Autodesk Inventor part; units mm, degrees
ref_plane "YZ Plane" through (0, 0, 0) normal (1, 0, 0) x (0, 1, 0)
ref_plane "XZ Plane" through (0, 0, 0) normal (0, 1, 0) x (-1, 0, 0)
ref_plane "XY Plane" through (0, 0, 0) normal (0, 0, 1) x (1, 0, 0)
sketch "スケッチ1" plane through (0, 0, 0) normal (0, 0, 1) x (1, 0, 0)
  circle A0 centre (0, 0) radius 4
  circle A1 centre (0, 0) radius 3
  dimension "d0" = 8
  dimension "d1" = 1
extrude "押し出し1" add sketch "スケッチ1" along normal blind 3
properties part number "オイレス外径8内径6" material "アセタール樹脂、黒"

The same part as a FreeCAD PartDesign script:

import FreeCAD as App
import Part
import Sketcher
from FreeCAD import Vector

doc = App.newDocument("Part")
body = doc.addObject("PartDesign::Body", "Body")

# Sketch on XY plane
sketch1 = body.newObject("Sketcher::SketchObject", "Sketch")
sketch1.AttachmentSupport = (doc.getObject("XY_Plane"), [""])
sketch1.MapMode = "FlatFace"
sketch1.addGeometry(Part.Circle(Vector(0, 0, 0), Vector(0, 0, 1), 4), False)
sketch1.addGeometry(Part.Circle(Vector(0, 0, 0), Vector(0, 0, 1), 3), False)
sketch1.addConstraint(Sketcher.Constraint("Coincident", 0, 3, -1, 1))
sketch1.addConstraint(Sketcher.Constraint("Coincident", 1, 3, -1, 1))
sketch1.addConstraint(Sketcher.Constraint("Diameter", 0, 8.0))
sketch1.addConstraint(Sketcher.Constraint("Diameter", 1, 6.0))
pad1 = body.newObject("PartDesign::Pad", "Pad")
pad1.Profile = sketch1
pad1.Length = 3

doc.recompute()
